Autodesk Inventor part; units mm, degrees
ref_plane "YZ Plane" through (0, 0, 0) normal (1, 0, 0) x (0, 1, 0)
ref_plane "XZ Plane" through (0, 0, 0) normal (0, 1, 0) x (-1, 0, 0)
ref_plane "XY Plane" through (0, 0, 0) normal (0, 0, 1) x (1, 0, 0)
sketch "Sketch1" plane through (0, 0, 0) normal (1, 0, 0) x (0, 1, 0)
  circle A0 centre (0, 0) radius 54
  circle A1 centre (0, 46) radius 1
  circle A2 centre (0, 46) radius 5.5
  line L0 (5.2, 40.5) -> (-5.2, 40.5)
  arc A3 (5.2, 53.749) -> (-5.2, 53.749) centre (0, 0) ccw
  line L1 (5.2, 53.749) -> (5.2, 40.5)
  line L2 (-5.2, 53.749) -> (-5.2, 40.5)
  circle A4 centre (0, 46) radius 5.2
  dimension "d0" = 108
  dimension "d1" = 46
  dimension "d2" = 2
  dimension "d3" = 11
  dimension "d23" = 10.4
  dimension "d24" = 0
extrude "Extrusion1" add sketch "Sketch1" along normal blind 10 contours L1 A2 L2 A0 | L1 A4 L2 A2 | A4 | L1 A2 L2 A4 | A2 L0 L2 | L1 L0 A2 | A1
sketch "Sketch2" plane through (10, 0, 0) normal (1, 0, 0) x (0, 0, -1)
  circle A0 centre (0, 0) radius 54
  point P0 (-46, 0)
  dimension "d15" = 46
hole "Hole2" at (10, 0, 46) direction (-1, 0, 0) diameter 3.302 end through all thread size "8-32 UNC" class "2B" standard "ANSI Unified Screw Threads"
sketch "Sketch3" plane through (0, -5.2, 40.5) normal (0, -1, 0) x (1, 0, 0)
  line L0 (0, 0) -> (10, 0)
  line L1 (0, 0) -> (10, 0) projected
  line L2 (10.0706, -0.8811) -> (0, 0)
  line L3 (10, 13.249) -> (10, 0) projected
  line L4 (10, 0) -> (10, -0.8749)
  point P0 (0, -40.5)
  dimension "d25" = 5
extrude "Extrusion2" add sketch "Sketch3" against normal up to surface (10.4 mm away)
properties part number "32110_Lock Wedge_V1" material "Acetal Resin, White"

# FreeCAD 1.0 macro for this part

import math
import FreeCAD as App
import Part
import Sketcher
from FreeCAD import Vector
Q = App.Units.Quantity

doc = App.newDocument("Part")
body = doc.addObject("PartDesign::Body", "Body")

# Sketch on YZ plane
sketch1 = doc.addObject("Sketcher::SketchObject", "Sketch")
body.addObject(sketch1)
sketch1.AttachmentSupport = (doc.YZ_Plane, [""])
sketch1.MapMode = "FlatFace"
sketch1.addGeometry([
    Part.ArcOfCircle(Part.Circle(Vector(0, 0, 0), Vector(0, 0, 1), 54), math.radians(84.474061), math.radians(95.525939)),
    Part.LineSegment(Vector(-5.2, 53.749, 0), Vector(-5.2, 40.5, 0)),
    Part.LineSegment(Vector(-5.2, 40.5, 0), Vector(5.2, 40.5, 0)),
    Part.LineSegment(Vector(5.2, 40.5, 0), Vector(5.2, 53.749, 0)),
], False)
sketch1.addConstraint([
    Sketcher.Constraint("Coincident", 0, 2, 1, 1),
    Sketcher.Constraint("Coincident", 1, 2, 2, 1),
    Sketcher.Constraint("Coincident", 2, 2, 3, 1),
    Sketcher.Constraint("Coincident", 3, 2, 0, 1),
    Sketcher.Constraint("Vertical", 1),
    Sketcher.Constraint("Horizontal", 2),
    Sketcher.Constraint("Vertical", 3),
    Sketcher.Constraint("Coincident", 0, 3, -1, 1),
    Sketcher.Constraint("Horizontal", 0, 2, 3, 2),
    Sketcher.Constraint("Radius", 0, Q("54 mm")),
    Sketcher.Constraint("DistanceX", 2, 1, 2, 2, Q("10.4 mm")),
    Sketcher.Constraint("DistanceY", -1, 1, 1, 2, Q("40.5 mm")),
])
pad1 = doc.addObject("PartDesign::Pad", "Pad")
body.addObject(pad1)
pad1.Profile = sketch1
pad1.Length = 10

# Sketch on YZ plane
sketch2 = doc.addObject("Sketcher::SketchObject", "Sketch001")
body.addObject(sketch2)
sketch2.AttachmentSupport = (doc.YZ_Plane, [""])
sketch2.MapMode = "FlatFace"
sketch2.AttachmentOffset = App.Placement(Vector(0, 0, 10), App.Rotation())
sketch2.addGeometry(Part.Circle(Vector(0, 46, 0), Vector(0, 0, 1), 1.651), False)
sketch2.addConstraint([
    Sketcher.Constraint("PointOnObject", 0, 3, -2),
    Sketcher.Constraint("Diameter", 0, Q("3.302 mm")),
    Sketcher.Constraint("DistanceY", -1, 1, 0, 3, Q("46 mm")),
])
doc.recompute()
hole = doc.addObject("PartDesign::Hole", "Hole")
body.addObject(hole)
hole.Profile = sketch2
hole.ThreadType = "None"
hole.Diameter = 3.302
hole.DepthType = "ThroughAll"

# Sketch on XZ plane
sketch3 = doc.addObject("Sketcher::SketchObject", "Sketch002")
body.addObject(sketch3)
sketch3.AttachmentSupport = (doc.XZ_Plane, [""])
sketch3.MapMode = "FlatFace"
sketch3.AttachmentOffset = App.Placement(Vector(0, 0, 5.2), App.Rotation())
sketch3.addGeometry([
    Part.LineSegment(Vector(10, 40.5, 0), Vector(0, 40.5, 0)),
    Part.LineSegment(Vector(0, 40.5, 0), Vector(9.999998, 39.625077, 0)),
    Part.LineSegment(Vector(10, 39.6251, 0), Vector(10, 40.5, 0)),
], False)
sketch3.addConstraint([
    Sketcher.Constraint("Coincident", 0, 2, 1, 1),
    Sketcher.Constraint("Coincident", 1, 2, 2, 1),
    Sketcher.Constraint("Coincident", 2, 2, 0, 1),
    Sketcher.Constraint("Horizontal", 0),
    Sketcher.Constraint("Vertical", 2),
    Sketcher.Constraint("PointOnObject", 0, 2, -2),
    Sketcher.Constraint("Angle", 1, Q("-5.0002 deg")),
    Sketcher.Constraint("DistanceX", 0, 2, 0, 1, Q("10 mm")),
    Sketcher.Constraint("DistanceY", -1, 1, 0, 2, Q("40.5 mm")),
])
pad2 = doc.addObject("PartDesign::Pad", "Pad001")
body.addObject(pad2)
pad2.Profile = sketch3
pad2.Length = 10.4
pad2.Reversed = True

doc.recompute()
